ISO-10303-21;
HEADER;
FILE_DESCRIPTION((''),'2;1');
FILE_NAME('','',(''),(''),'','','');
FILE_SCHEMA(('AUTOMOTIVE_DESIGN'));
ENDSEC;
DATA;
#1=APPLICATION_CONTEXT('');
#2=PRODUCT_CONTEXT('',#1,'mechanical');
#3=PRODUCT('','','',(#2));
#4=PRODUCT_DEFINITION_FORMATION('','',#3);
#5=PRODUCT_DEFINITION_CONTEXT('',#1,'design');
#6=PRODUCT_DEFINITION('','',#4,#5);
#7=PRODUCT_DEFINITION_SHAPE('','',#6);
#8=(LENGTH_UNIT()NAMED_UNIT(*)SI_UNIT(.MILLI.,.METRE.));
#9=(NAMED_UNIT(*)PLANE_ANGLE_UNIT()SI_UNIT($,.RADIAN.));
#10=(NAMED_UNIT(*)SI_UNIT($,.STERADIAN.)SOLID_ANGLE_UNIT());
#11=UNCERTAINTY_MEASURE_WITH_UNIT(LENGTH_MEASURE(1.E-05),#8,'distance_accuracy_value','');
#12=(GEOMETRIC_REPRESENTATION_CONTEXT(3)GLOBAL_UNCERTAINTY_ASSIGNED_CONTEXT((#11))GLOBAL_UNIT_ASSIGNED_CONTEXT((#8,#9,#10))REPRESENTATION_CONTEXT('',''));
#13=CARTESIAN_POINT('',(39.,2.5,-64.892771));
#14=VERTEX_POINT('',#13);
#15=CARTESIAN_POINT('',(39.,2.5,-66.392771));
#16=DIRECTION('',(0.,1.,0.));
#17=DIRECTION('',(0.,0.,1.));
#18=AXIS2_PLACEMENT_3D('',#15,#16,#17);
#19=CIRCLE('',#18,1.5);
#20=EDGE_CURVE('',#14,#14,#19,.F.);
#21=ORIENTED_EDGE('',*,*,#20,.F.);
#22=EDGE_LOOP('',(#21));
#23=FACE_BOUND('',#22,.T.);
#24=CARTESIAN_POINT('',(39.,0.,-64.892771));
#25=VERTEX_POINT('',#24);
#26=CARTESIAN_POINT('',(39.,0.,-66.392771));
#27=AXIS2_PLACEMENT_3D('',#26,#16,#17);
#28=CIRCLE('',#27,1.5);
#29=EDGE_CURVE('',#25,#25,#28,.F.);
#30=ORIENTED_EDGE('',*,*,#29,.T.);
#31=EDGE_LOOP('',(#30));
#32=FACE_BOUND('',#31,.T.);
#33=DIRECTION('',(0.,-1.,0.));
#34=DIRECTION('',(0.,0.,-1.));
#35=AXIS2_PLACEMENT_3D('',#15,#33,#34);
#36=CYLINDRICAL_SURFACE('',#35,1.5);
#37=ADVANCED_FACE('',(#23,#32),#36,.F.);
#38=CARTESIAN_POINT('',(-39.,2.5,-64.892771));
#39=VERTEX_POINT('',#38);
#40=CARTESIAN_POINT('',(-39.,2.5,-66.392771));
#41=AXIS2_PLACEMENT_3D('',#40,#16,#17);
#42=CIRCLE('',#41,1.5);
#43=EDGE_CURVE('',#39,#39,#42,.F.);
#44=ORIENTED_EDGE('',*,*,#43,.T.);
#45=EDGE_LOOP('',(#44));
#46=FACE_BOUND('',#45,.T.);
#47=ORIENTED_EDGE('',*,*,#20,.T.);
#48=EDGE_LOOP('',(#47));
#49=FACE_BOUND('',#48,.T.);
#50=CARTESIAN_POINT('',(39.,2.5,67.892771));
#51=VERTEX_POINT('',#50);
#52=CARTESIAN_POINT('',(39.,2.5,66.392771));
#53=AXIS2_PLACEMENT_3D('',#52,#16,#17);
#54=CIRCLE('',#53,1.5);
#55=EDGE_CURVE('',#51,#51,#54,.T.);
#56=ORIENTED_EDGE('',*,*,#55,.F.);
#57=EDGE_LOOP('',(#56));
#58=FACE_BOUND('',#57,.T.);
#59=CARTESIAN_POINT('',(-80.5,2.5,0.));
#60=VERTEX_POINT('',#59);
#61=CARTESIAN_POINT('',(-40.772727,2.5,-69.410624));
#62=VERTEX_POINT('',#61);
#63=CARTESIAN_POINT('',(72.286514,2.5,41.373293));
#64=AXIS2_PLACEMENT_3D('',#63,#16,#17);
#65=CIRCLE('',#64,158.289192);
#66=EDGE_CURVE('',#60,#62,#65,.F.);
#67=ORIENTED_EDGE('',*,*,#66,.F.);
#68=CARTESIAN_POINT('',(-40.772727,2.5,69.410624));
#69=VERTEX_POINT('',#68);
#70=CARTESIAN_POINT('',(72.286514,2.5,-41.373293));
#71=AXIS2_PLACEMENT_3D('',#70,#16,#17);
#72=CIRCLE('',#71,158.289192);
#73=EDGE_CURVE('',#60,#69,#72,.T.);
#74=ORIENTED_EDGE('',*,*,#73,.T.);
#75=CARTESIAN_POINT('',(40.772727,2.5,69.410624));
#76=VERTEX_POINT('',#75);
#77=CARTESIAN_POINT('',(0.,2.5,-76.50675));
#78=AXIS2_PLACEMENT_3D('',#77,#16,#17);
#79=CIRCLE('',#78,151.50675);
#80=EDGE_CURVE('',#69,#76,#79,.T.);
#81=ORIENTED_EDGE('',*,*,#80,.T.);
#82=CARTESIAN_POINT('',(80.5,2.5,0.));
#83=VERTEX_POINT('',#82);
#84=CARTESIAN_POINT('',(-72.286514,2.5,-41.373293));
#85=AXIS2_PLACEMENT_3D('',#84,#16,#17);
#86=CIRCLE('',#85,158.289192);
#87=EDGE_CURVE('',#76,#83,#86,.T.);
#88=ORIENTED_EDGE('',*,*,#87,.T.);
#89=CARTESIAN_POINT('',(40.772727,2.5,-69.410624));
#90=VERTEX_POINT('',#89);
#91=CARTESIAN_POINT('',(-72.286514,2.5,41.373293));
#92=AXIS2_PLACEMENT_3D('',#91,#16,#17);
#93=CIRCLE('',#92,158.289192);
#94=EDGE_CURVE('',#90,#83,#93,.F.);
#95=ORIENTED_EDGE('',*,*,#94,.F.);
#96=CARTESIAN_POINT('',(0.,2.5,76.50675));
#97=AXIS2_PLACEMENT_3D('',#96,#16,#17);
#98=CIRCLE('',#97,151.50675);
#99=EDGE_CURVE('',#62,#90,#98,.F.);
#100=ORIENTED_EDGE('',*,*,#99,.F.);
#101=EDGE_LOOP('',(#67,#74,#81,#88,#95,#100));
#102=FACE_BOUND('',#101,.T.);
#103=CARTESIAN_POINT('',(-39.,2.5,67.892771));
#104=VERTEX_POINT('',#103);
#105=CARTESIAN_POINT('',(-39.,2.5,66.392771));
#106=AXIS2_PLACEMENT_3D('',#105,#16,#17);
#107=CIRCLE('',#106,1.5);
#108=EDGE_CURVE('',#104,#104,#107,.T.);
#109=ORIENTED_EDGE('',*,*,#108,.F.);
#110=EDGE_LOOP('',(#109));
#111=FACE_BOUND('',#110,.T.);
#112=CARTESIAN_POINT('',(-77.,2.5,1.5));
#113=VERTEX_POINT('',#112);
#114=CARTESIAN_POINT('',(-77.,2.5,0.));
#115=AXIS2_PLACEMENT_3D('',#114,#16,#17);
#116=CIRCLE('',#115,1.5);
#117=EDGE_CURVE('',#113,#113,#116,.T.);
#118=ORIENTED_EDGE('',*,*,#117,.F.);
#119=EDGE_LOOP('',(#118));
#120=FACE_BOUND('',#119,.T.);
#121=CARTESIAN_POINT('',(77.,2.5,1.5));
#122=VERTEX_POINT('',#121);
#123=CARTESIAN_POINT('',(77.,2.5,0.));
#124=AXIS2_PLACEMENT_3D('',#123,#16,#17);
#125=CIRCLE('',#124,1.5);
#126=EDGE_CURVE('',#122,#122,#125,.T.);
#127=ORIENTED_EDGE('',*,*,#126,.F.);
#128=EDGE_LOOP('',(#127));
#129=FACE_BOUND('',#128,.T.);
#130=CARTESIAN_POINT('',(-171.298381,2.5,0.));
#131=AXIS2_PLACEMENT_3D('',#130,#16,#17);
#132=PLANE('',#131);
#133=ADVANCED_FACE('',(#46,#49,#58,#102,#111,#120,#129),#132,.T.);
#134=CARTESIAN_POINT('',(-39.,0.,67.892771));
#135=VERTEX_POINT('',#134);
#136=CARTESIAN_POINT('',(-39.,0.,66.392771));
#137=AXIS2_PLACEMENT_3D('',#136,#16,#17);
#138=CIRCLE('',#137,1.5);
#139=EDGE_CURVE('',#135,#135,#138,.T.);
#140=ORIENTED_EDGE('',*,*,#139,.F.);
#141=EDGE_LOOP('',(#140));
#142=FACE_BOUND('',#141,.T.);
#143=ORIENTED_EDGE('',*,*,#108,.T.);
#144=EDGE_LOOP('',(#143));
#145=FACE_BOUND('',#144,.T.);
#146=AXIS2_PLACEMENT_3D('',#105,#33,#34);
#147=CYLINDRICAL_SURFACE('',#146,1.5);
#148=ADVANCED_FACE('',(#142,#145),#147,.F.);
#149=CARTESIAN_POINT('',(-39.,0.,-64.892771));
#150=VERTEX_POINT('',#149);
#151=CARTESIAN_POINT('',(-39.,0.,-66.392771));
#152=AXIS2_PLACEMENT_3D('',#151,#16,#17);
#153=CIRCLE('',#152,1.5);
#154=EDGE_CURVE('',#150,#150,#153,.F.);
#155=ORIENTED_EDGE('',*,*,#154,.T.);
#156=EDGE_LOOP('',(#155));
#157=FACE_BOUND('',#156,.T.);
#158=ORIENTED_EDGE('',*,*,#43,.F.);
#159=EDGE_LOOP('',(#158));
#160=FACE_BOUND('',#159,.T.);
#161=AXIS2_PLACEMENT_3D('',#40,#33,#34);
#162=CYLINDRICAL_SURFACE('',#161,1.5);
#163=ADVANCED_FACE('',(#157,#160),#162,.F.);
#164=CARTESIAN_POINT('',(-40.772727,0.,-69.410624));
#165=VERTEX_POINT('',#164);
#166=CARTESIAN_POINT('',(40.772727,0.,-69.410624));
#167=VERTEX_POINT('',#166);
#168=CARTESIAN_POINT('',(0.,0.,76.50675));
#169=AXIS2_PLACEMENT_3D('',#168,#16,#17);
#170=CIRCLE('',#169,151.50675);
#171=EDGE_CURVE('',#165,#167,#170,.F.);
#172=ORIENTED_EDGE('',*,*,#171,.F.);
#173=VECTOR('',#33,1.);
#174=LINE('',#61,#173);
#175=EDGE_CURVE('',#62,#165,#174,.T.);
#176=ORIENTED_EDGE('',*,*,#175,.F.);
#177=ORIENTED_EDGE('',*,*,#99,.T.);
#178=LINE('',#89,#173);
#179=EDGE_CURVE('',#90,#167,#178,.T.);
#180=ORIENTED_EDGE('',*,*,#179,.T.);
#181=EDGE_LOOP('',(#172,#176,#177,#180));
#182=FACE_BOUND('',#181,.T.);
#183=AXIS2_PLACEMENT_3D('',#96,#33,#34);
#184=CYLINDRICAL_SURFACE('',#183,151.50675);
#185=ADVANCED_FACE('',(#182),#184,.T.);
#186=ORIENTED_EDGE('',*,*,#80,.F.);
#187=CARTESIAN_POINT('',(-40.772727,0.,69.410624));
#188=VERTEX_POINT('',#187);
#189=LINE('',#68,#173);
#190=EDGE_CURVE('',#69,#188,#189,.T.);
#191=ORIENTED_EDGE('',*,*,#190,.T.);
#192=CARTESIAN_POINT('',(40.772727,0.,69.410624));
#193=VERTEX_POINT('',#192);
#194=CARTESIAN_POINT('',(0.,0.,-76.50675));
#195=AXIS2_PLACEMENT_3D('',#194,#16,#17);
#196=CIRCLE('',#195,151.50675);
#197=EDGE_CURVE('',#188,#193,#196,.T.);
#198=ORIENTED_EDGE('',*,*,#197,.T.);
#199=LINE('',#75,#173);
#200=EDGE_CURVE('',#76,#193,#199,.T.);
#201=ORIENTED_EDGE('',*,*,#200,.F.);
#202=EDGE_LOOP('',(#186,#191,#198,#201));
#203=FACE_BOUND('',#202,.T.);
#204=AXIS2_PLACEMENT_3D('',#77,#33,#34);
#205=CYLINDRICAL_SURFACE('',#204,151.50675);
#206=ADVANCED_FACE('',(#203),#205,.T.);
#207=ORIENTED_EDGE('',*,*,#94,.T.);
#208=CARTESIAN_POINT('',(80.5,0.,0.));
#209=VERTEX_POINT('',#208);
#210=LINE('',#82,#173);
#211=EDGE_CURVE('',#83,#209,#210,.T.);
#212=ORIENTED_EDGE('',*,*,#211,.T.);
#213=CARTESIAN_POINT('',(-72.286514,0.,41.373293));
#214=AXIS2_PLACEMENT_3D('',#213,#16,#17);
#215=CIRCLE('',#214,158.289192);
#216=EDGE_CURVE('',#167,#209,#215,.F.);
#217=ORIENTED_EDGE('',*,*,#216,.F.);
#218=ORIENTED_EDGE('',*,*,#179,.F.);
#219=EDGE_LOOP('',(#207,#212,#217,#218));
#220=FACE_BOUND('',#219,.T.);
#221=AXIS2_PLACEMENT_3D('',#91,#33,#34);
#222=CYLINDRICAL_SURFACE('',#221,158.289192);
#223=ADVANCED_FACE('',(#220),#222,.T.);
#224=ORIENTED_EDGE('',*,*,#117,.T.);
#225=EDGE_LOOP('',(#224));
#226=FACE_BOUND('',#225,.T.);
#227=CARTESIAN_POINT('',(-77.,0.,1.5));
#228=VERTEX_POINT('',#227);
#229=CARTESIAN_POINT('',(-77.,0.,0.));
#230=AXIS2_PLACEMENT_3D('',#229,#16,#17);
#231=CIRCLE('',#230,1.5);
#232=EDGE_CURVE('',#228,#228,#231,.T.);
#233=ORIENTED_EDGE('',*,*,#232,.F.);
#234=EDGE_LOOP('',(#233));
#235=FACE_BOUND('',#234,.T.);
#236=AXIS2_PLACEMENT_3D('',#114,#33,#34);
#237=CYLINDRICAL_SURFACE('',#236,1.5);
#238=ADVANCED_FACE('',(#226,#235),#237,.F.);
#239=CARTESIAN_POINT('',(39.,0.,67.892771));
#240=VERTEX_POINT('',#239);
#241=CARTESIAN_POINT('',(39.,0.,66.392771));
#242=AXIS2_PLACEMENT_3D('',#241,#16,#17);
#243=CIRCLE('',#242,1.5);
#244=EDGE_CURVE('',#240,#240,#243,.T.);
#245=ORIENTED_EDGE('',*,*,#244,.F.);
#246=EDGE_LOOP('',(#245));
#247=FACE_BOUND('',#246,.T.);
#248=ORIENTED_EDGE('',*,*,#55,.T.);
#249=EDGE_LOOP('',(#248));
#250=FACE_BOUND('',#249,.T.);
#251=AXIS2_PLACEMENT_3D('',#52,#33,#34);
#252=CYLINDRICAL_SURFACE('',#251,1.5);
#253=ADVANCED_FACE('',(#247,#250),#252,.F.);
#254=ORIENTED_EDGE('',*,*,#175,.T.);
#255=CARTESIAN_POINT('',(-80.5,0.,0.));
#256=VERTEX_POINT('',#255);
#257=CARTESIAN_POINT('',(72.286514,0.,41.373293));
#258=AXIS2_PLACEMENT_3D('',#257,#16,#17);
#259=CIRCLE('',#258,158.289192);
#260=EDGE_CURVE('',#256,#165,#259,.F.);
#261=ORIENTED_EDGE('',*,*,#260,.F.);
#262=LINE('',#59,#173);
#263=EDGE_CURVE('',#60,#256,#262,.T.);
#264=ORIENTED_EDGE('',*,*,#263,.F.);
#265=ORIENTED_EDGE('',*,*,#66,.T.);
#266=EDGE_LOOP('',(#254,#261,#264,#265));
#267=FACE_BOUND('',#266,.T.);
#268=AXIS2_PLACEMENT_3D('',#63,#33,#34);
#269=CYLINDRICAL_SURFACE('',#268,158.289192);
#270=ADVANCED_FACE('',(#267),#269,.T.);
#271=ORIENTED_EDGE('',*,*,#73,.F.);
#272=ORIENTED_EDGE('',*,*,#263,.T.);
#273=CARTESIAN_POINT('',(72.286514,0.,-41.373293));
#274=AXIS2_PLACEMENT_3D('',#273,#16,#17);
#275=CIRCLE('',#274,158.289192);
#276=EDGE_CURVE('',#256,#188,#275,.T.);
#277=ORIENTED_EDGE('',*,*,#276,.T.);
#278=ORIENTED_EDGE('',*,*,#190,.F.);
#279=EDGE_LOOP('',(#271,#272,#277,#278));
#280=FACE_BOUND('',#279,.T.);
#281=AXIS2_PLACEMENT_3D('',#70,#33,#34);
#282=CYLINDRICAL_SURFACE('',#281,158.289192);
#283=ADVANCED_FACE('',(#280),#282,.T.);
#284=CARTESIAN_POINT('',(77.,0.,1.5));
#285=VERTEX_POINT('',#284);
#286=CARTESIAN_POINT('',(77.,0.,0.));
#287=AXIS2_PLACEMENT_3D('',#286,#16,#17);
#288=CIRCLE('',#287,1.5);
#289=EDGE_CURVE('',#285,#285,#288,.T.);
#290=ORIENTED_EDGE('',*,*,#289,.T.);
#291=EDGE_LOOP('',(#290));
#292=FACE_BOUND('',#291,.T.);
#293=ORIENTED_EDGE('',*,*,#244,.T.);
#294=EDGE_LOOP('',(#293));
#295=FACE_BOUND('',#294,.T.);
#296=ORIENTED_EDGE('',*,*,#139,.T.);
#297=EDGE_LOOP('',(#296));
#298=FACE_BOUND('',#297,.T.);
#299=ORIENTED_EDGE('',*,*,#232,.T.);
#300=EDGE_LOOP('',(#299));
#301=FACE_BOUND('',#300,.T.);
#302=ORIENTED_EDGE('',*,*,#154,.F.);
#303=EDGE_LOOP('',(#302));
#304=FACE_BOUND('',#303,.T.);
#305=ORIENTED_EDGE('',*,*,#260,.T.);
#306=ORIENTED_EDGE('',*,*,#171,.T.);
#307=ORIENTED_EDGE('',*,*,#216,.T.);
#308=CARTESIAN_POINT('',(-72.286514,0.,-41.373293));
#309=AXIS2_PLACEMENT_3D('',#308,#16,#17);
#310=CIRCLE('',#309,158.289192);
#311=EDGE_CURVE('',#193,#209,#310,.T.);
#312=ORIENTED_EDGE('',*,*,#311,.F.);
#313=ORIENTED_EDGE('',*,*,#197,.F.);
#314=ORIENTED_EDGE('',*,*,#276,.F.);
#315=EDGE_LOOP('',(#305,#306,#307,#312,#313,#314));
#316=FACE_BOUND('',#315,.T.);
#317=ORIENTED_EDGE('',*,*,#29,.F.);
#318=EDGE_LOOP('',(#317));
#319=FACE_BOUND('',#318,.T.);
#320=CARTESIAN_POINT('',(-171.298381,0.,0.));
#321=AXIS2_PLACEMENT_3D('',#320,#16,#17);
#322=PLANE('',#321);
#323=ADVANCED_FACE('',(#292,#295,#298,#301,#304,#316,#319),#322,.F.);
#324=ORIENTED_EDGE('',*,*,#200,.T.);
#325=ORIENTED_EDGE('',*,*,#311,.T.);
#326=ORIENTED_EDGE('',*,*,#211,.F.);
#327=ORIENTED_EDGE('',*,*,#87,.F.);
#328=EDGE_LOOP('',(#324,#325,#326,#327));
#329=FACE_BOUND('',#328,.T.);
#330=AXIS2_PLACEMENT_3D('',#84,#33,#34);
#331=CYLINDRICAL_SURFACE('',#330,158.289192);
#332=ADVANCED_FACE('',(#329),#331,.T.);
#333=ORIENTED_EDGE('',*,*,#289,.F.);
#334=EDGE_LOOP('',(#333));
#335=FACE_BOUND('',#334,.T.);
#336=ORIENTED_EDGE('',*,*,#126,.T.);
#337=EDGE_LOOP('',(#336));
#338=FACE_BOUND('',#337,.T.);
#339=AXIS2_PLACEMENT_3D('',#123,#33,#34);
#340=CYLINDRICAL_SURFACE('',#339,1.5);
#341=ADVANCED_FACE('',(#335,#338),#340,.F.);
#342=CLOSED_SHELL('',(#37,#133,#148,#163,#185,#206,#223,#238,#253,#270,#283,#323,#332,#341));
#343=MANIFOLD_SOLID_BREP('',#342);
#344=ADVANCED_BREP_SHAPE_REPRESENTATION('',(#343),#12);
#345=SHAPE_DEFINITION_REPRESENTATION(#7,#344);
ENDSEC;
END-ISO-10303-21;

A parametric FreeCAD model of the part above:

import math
import FreeCAD as App
import Part
import Sketcher

V = App.Vector

doc = App.newDocument("Part")
params = doc.addObject("Spreadsheet::Sheet", "Params")
for row, (alias, value) in enumerate([
    ("sketch1_diameter", "3 mm"),
    ("pad1_length", "2.5 mm"),
], start=1):
    params.set(f"A{row}", alias)
    params.set(f"B{row}", "=" + value)
    params.setAlias(f"B{row}", alias)

body = doc.addObject("PartDesign::Body", "Body")

sketch1 = doc.addObject("Sketcher::SketchObject", "Sketch")
body.addObject(sketch1)
sketch1.AttachmentSupport = (doc.XZ_Plane, [""])
sketch1.MapMode = "FlatFace"
sketch1.addGeometry(Part.ArcOfCircle(Part.Circle(V(72.286514, 41.373293, 0), V(0, 0, 1), 158.289192), math.radians(-164.848164), math.radians(-150.215272)), False)
sketch1.addGeometry(Part.ArcOfCircle(Part.Circle(V(72.286514, -41.373293, 0), V(0, 0, 1), 158.289192), math.radians(150.215271), math.radians(164.848164)), False)
sketch1.addGeometry(Part.ArcOfCircle(Part.Circle(V(72.286514, -41.373293, 0), V(0, 0, 1), 158.289192), math.radians(135.582381), math.radians(150.215271)), False)
sketch1.addGeometry(Part.ArcOfCircle(Part.Circle(V(0, -76.50675, 0), V(0, 0, 1), 151.50675), math.radians(90), math.radians(105.611606)), False)
sketch1.addGeometry(Part.ArcOfCircle(Part.Circle(V(0, -76.50675, 0), V(0, 0, 1), 151.50675), math.radians(74.388394), math.radians(90)), False)
sketch1.addGeometry(Part.ArcOfCircle(Part.Circle(V(-72.286514, -41.373293, 0), V(0, 0, 1), 158.289192), math.radians(29.784729), math.radians(44.417619)), False)
sketch1.addGeometry(Part.ArcOfCircle(Part.Circle(V(-72.286514, -41.373293, 0), V(0, 0, 1), 158.289192), math.radians(15.151836), math.radians(29.784729)), False)
sketch1.addGeometry(Part.ArcOfCircle(Part.Circle(V(-72.286514, 41.373293, 0), V(0, 0, 1), 158.289192), math.radians(-29.784729), math.radians(-15.151836)), False)
sketch1.addGeometry(Part.ArcOfCircle(Part.Circle(V(-72.286514, 41.373293, 0), V(0, 0, 1), 158.289192), math.radians(-44.417619), math.radians(-29.784729)), False)
sketch1.addGeometry(Part.ArcOfCircle(Part.Circle(V(0, 76.50675, 0), V(0, 0, 1), 151.50675), math.radians(-90), math.radians(-74.388394)), False)
sketch1.addGeometry(Part.ArcOfCircle(Part.Circle(V(0, 76.50675, 0), V(0, 0, 1), 151.50675), math.radians(-105.611606), math.radians(-90)), False)
sketch1.addGeometry(Part.ArcOfCircle(Part.Circle(V(72.286514, 41.373293, 0), V(0, 0, 1), 158.289192), math.radians(-150.215272), math.radians(-135.582381)), False)
sketch1.addGeometry(Part.Circle(V(-39, 66.392771, 0), V(0, 0, 1), 1.5), False)
sketch1.addGeometry(Part.Circle(V(39, 66.392771, 0), V(0, 0, 1), 1.5), False)
sketch1.addGeometry(Part.Circle(V(-77, 0, 0), V(0, 0, 1), 1.5), False)
sketch1.addGeometry(Part.Circle(V(-39, -66.392771, 0), V(0, 0, 1), 1.5), False)
sketch1.addGeometry(Part.Circle(V(77, 0, 0), V(0, 0, 1), 1.5), False)
sketch1.addGeometry(Part.Circle(V(39, -66.392771, 0), V(0, 0, 1), 1.5), False)
sketch1.addConstraint(Sketcher.Constraint("Coincident", 0, 1, 1, 2))
sketch1.addConstraint(Sketcher.Constraint("Tangent", 1, 1, 2, 2))
sketch1.addConstraint(Sketcher.Constraint("Coincident", 2, 1, 3, 2))
sketch1.addConstraint(Sketcher.Constraint("Tangent", 3, 1, 4, 2))
sketch1.addConstraint(Sketcher.Constraint("Coincident", 4, 1, 5, 2))
sketch1.addConstraint(Sketcher.Constraint("Tangent", 5, 1, 6, 2))
sketch1.addConstraint(Sketcher.Constraint("Coincident", 6, 1, 7, 2))
sketch1.addConstraint(Sketcher.Constraint("Tangent", 7, 1, 8, 2))
sketch1.addConstraint(Sketcher.Constraint("Coincident", 8, 1, 9, 2))
sketch1.addConstraint(Sketcher.Constraint("Tangent", 9, 1, 10, 2))
sketch1.addConstraint(Sketcher.Constraint("Coincident", 10, 1, 11, 2))
sketch1.addConstraint(Sketcher.Constraint("Tangent", 11, 1, 0, 2))
sketch1.addConstraint(Sketcher.Constraint("Equal", 0, 1))
sketch1.addConstraint(Sketcher.Constraint("Equal", 1, 2))
sketch1.addConstraint(Sketcher.Constraint("Equal", 3, 4))
sketch1.addConstraint(Sketcher.Constraint("Equal", 2, 5))
sketch1.addConstraint(Sketcher.Constraint("Equal", 5, 6))
sketch1.addConstraint(Sketcher.Constraint("Equal", 6, 7))
sketch1.addConstraint(Sketcher.Constraint("Equal", 7, 8))
sketch1.addConstraint(Sketcher.Constraint("Equal", 4, 9))
sketch1.addConstraint(Sketcher.Constraint("Equal", 9, 10))
sketch1.addConstraint(Sketcher.Constraint("Equal", 8, 11))
sketch1.addConstraint(Sketcher.Constraint("Equal", 12, 13))
sketch1.addConstraint(Sketcher.Constraint("Equal", 13, 14))
sketch1.addConstraint(Sketcher.Constraint("Equal", 14, 15))
sketch1.addConstraint(Sketcher.Constraint("Equal", 15, 16))
sketch1.addConstraint(Sketcher.Constraint("Equal", 16, 17))
sketch1.addConstraint(Sketcher.Constraint("Symmetric", 0, 3, 5, 3, -1, 1))
sketch1.addConstraint(Sketcher.Constraint("Symmetric", 1, 3, 7, 3, -1, 1))
sketch1.addConstraint(Sketcher.Constraint("Symmetric", 3, 3, 9, 3, -1, 1))
sketch1.addConstraint(Sketcher.Constraint("Symmetric", 13, 3, 15, 3, -1, 1))
sketch1.addConstraint(Sketcher.Constraint("Symmetric", 14, 3, 16, 3, -1, 1))
sketch1.addConstraint(Sketcher.Constraint("Symmetric", 12, 3, 17, 3, -1, 1))
sketch1.addConstraint(Sketcher.Constraint("Symmetric", 1, 3, 5, 3, -2))
sketch1.addConstraint(Sketcher.Constraint("Symmetric", 12, 3, 13, 3, -2))
sketch1.addConstraint(Sketcher.Constraint("PointOnObject", 3, 3, -2))
sketch1.addConstraint(Sketcher.Constraint("PointOnObject", 14, 3, -1))
sketch1.addConstraint(Sketcher.Constraint("PointOnObject", 3, 1, -2))
sketch1.addConstraint(Sketcher.Constraint("PointOnObject", 9, 1, -2))
sketch1.addConstraint(Sketcher.Constraint("Horizontal", 1, 1, 5, 1))
sketch1.addConstraint(Sketcher.Constraint("Vertical", 5, 1, 7, 1))
sketch1.addConstraint(Sketcher.Constraint("Vertical", 1, 1, 11, 1))
sketch1.addConstraint(Sketcher.Constraint("Diameter", 12, 3.0))
sketch1.addConstraint(Sketcher.Constraint("DistanceX", 12, 3, -1, 1, 39.0))
sketch1.addConstraint(Sketcher.Constraint("DistanceX", 14, 3, -1, 1, 77.0))
sketch1.addConstraint(Sketcher.Constraint("DistanceY", -1, 1, 3, 1, 75.0))
sketch1.addConstraint(Sketcher.Constraint("DistanceX", 0, 1, -1, 1, 80.5))
sketch1.addConstraint(Sketcher.Constraint("Radius", 0, 158.289192))
sketch1.addConstraint(Sketcher.Constraint("Radius", 3, 151.50675))
sketch1.addConstraint(Sketcher.Constraint("DistanceY", 7, 1, -1, 1, 37.255702))
sketch1.addConstraint(Sketcher.Constraint("DistanceY", -1, 1, 12, 3, 66.392771))
sketch1.addConstraint(Sketcher.Constraint("DistanceX", 5, 3, 1, 3, 144.573028))
sketch1.setExpression("Constraints[42]", "Params.sketch1_diameter")
pad1 = doc.addObject("PartDesign::Pad", "Pad")
body.addObject(pad1)
pad1.Profile = sketch1
pad1.setExpression("Length", "Params.pad1_length")
pad1.Reversed = True

doc.recompute()
